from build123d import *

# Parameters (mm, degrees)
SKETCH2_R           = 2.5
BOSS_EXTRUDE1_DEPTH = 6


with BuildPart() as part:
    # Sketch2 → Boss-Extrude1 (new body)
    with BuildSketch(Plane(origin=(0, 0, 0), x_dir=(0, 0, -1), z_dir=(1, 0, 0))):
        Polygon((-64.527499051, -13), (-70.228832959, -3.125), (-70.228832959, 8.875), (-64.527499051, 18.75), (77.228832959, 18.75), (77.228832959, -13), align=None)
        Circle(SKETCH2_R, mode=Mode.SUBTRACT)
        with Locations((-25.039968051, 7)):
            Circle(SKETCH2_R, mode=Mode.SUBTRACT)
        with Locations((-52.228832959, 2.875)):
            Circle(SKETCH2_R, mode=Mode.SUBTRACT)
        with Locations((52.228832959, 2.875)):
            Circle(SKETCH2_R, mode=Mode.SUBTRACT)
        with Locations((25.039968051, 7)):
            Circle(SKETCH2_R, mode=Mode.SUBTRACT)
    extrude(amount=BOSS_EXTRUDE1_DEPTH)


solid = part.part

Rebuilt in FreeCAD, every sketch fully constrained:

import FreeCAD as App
import Part
import Sketcher
Q = App.Units.Quantity


def add_polygon(sketch, points):
    """Adds a closed chain of lines whose ends are joined by coincident constraints."""
    first, n = sketch.GeometryCount, len(points)
    for a, b in zip(points, points[1:] + points[:1]):
        sketch.addGeometry(Part.LineSegment(App.Vector(*a, 0), App.Vector(*b, 0)), False)
    for i in range(n):
        sketch.addConstraint(Sketcher.Constraint("Coincident", first + i, 2, first + (i + 1) % n, 1))

doc = App.newDocument("Part")
body = doc.addObject("PartDesign::Body", "Body")

# Sketch on YZ plane
sketch1 = body.newObject("Sketcher::SketchObject", "Sketch")
sketch1.AttachmentSupport = (doc.getObject("YZ_Plane"), [""])
sketch1.MapMode = "FlatFace"
add_polygon(sketch1, [(-3.1, 70.2), (-13, 64.5), (-13, -77.2), (18.8, -77.2), (18.8, 64.5), (8.9, 70.2)])  # lines 0-5
sketch1.addGeometry(Part.Circle(App.Vector(2.9, -52.2, 0), App.Vector(0, 0, 1), 2.5), False)  # 6
sketch1.addGeometry(Part.Circle(App.Vector(0, 0, 0), App.Vector(0, 0, 1), 2.5), False)  # 7
sketch1.addGeometry(Part.Circle(App.Vector(2.9, 52.2, 0), App.Vector(0, 0, 1), 2.5), False)  # 8
sketch1.addGeometry(Part.Circle(App.Vector(7, -25, 0), App.Vector(0, 0, 1), 2.5), False)  # 9
sketch1.addGeometry(Part.Circle(App.Vector(7, 25, 0), App.Vector(0, 0, 1), 2.5), False)  # 10
sketch1.addConstraint([
    Sketcher.Constraint("Vertical", 1),
    Sketcher.Constraint("Horizontal", 2),
    Sketcher.Constraint("Vertical", 3),
    Sketcher.Constraint("Horizontal", 5),
    Sketcher.Constraint("Coincident", 7, 3, -1, 1),
    Sketcher.Constraint("Equal", 6, 7),
    Sketcher.Constraint("Equal", 7, 8),
    Sketcher.Constraint("Equal", 8, 9),
    Sketcher.Constraint("Equal", 9, 10),
    Sketcher.Constraint("Symmetric", 6, 3, 8, 3, -1),
    Sketcher.Constraint("Symmetric", 9, 3, 10, 3, -1),
    Sketcher.Constraint("Horizontal", 0, 2, 3, 2),
    Sketcher.Constraint("Equal", 0, 4),
    Sketcher.Constraint("Diameter", 6, 5.0),
    Sketcher.Constraint("DistanceX", 5, 2, 5, 1, 12.0),
    Sketcher.Constraint("Angle", 0, Q("-150 deg")),
    Sketcher.Constraint("DistanceX", -1, 1, 9, 3, 7.0),
    Sketcher.Constraint("DistanceX", 0, 2, -1, 1, 13.0),
    Sketcher.Constraint("DistanceY", 1, 2, 6, 3, 25.0),
    Sketcher.Constraint("DistanceX", 8, 3, 4, 2, 6.0),
    Sketcher.Constraint("DistanceY", 8, 3, 4, 2, 18.0),
    Sketcher.Constraint("DistanceX", 2, 1, 2, 2, 31.75),
    Sketcher.Constraint("DistanceY", -1, 1, 0, 2, 64.527499),
    Sketcher.Constraint("DistanceY", 9, 3, 8, 3, 77.268801),
])
pad1 = body.newObject("PartDesign::Pad", "Pad")
pad1.Profile = sketch1
pad1.Length = 6

doc.recompute()
